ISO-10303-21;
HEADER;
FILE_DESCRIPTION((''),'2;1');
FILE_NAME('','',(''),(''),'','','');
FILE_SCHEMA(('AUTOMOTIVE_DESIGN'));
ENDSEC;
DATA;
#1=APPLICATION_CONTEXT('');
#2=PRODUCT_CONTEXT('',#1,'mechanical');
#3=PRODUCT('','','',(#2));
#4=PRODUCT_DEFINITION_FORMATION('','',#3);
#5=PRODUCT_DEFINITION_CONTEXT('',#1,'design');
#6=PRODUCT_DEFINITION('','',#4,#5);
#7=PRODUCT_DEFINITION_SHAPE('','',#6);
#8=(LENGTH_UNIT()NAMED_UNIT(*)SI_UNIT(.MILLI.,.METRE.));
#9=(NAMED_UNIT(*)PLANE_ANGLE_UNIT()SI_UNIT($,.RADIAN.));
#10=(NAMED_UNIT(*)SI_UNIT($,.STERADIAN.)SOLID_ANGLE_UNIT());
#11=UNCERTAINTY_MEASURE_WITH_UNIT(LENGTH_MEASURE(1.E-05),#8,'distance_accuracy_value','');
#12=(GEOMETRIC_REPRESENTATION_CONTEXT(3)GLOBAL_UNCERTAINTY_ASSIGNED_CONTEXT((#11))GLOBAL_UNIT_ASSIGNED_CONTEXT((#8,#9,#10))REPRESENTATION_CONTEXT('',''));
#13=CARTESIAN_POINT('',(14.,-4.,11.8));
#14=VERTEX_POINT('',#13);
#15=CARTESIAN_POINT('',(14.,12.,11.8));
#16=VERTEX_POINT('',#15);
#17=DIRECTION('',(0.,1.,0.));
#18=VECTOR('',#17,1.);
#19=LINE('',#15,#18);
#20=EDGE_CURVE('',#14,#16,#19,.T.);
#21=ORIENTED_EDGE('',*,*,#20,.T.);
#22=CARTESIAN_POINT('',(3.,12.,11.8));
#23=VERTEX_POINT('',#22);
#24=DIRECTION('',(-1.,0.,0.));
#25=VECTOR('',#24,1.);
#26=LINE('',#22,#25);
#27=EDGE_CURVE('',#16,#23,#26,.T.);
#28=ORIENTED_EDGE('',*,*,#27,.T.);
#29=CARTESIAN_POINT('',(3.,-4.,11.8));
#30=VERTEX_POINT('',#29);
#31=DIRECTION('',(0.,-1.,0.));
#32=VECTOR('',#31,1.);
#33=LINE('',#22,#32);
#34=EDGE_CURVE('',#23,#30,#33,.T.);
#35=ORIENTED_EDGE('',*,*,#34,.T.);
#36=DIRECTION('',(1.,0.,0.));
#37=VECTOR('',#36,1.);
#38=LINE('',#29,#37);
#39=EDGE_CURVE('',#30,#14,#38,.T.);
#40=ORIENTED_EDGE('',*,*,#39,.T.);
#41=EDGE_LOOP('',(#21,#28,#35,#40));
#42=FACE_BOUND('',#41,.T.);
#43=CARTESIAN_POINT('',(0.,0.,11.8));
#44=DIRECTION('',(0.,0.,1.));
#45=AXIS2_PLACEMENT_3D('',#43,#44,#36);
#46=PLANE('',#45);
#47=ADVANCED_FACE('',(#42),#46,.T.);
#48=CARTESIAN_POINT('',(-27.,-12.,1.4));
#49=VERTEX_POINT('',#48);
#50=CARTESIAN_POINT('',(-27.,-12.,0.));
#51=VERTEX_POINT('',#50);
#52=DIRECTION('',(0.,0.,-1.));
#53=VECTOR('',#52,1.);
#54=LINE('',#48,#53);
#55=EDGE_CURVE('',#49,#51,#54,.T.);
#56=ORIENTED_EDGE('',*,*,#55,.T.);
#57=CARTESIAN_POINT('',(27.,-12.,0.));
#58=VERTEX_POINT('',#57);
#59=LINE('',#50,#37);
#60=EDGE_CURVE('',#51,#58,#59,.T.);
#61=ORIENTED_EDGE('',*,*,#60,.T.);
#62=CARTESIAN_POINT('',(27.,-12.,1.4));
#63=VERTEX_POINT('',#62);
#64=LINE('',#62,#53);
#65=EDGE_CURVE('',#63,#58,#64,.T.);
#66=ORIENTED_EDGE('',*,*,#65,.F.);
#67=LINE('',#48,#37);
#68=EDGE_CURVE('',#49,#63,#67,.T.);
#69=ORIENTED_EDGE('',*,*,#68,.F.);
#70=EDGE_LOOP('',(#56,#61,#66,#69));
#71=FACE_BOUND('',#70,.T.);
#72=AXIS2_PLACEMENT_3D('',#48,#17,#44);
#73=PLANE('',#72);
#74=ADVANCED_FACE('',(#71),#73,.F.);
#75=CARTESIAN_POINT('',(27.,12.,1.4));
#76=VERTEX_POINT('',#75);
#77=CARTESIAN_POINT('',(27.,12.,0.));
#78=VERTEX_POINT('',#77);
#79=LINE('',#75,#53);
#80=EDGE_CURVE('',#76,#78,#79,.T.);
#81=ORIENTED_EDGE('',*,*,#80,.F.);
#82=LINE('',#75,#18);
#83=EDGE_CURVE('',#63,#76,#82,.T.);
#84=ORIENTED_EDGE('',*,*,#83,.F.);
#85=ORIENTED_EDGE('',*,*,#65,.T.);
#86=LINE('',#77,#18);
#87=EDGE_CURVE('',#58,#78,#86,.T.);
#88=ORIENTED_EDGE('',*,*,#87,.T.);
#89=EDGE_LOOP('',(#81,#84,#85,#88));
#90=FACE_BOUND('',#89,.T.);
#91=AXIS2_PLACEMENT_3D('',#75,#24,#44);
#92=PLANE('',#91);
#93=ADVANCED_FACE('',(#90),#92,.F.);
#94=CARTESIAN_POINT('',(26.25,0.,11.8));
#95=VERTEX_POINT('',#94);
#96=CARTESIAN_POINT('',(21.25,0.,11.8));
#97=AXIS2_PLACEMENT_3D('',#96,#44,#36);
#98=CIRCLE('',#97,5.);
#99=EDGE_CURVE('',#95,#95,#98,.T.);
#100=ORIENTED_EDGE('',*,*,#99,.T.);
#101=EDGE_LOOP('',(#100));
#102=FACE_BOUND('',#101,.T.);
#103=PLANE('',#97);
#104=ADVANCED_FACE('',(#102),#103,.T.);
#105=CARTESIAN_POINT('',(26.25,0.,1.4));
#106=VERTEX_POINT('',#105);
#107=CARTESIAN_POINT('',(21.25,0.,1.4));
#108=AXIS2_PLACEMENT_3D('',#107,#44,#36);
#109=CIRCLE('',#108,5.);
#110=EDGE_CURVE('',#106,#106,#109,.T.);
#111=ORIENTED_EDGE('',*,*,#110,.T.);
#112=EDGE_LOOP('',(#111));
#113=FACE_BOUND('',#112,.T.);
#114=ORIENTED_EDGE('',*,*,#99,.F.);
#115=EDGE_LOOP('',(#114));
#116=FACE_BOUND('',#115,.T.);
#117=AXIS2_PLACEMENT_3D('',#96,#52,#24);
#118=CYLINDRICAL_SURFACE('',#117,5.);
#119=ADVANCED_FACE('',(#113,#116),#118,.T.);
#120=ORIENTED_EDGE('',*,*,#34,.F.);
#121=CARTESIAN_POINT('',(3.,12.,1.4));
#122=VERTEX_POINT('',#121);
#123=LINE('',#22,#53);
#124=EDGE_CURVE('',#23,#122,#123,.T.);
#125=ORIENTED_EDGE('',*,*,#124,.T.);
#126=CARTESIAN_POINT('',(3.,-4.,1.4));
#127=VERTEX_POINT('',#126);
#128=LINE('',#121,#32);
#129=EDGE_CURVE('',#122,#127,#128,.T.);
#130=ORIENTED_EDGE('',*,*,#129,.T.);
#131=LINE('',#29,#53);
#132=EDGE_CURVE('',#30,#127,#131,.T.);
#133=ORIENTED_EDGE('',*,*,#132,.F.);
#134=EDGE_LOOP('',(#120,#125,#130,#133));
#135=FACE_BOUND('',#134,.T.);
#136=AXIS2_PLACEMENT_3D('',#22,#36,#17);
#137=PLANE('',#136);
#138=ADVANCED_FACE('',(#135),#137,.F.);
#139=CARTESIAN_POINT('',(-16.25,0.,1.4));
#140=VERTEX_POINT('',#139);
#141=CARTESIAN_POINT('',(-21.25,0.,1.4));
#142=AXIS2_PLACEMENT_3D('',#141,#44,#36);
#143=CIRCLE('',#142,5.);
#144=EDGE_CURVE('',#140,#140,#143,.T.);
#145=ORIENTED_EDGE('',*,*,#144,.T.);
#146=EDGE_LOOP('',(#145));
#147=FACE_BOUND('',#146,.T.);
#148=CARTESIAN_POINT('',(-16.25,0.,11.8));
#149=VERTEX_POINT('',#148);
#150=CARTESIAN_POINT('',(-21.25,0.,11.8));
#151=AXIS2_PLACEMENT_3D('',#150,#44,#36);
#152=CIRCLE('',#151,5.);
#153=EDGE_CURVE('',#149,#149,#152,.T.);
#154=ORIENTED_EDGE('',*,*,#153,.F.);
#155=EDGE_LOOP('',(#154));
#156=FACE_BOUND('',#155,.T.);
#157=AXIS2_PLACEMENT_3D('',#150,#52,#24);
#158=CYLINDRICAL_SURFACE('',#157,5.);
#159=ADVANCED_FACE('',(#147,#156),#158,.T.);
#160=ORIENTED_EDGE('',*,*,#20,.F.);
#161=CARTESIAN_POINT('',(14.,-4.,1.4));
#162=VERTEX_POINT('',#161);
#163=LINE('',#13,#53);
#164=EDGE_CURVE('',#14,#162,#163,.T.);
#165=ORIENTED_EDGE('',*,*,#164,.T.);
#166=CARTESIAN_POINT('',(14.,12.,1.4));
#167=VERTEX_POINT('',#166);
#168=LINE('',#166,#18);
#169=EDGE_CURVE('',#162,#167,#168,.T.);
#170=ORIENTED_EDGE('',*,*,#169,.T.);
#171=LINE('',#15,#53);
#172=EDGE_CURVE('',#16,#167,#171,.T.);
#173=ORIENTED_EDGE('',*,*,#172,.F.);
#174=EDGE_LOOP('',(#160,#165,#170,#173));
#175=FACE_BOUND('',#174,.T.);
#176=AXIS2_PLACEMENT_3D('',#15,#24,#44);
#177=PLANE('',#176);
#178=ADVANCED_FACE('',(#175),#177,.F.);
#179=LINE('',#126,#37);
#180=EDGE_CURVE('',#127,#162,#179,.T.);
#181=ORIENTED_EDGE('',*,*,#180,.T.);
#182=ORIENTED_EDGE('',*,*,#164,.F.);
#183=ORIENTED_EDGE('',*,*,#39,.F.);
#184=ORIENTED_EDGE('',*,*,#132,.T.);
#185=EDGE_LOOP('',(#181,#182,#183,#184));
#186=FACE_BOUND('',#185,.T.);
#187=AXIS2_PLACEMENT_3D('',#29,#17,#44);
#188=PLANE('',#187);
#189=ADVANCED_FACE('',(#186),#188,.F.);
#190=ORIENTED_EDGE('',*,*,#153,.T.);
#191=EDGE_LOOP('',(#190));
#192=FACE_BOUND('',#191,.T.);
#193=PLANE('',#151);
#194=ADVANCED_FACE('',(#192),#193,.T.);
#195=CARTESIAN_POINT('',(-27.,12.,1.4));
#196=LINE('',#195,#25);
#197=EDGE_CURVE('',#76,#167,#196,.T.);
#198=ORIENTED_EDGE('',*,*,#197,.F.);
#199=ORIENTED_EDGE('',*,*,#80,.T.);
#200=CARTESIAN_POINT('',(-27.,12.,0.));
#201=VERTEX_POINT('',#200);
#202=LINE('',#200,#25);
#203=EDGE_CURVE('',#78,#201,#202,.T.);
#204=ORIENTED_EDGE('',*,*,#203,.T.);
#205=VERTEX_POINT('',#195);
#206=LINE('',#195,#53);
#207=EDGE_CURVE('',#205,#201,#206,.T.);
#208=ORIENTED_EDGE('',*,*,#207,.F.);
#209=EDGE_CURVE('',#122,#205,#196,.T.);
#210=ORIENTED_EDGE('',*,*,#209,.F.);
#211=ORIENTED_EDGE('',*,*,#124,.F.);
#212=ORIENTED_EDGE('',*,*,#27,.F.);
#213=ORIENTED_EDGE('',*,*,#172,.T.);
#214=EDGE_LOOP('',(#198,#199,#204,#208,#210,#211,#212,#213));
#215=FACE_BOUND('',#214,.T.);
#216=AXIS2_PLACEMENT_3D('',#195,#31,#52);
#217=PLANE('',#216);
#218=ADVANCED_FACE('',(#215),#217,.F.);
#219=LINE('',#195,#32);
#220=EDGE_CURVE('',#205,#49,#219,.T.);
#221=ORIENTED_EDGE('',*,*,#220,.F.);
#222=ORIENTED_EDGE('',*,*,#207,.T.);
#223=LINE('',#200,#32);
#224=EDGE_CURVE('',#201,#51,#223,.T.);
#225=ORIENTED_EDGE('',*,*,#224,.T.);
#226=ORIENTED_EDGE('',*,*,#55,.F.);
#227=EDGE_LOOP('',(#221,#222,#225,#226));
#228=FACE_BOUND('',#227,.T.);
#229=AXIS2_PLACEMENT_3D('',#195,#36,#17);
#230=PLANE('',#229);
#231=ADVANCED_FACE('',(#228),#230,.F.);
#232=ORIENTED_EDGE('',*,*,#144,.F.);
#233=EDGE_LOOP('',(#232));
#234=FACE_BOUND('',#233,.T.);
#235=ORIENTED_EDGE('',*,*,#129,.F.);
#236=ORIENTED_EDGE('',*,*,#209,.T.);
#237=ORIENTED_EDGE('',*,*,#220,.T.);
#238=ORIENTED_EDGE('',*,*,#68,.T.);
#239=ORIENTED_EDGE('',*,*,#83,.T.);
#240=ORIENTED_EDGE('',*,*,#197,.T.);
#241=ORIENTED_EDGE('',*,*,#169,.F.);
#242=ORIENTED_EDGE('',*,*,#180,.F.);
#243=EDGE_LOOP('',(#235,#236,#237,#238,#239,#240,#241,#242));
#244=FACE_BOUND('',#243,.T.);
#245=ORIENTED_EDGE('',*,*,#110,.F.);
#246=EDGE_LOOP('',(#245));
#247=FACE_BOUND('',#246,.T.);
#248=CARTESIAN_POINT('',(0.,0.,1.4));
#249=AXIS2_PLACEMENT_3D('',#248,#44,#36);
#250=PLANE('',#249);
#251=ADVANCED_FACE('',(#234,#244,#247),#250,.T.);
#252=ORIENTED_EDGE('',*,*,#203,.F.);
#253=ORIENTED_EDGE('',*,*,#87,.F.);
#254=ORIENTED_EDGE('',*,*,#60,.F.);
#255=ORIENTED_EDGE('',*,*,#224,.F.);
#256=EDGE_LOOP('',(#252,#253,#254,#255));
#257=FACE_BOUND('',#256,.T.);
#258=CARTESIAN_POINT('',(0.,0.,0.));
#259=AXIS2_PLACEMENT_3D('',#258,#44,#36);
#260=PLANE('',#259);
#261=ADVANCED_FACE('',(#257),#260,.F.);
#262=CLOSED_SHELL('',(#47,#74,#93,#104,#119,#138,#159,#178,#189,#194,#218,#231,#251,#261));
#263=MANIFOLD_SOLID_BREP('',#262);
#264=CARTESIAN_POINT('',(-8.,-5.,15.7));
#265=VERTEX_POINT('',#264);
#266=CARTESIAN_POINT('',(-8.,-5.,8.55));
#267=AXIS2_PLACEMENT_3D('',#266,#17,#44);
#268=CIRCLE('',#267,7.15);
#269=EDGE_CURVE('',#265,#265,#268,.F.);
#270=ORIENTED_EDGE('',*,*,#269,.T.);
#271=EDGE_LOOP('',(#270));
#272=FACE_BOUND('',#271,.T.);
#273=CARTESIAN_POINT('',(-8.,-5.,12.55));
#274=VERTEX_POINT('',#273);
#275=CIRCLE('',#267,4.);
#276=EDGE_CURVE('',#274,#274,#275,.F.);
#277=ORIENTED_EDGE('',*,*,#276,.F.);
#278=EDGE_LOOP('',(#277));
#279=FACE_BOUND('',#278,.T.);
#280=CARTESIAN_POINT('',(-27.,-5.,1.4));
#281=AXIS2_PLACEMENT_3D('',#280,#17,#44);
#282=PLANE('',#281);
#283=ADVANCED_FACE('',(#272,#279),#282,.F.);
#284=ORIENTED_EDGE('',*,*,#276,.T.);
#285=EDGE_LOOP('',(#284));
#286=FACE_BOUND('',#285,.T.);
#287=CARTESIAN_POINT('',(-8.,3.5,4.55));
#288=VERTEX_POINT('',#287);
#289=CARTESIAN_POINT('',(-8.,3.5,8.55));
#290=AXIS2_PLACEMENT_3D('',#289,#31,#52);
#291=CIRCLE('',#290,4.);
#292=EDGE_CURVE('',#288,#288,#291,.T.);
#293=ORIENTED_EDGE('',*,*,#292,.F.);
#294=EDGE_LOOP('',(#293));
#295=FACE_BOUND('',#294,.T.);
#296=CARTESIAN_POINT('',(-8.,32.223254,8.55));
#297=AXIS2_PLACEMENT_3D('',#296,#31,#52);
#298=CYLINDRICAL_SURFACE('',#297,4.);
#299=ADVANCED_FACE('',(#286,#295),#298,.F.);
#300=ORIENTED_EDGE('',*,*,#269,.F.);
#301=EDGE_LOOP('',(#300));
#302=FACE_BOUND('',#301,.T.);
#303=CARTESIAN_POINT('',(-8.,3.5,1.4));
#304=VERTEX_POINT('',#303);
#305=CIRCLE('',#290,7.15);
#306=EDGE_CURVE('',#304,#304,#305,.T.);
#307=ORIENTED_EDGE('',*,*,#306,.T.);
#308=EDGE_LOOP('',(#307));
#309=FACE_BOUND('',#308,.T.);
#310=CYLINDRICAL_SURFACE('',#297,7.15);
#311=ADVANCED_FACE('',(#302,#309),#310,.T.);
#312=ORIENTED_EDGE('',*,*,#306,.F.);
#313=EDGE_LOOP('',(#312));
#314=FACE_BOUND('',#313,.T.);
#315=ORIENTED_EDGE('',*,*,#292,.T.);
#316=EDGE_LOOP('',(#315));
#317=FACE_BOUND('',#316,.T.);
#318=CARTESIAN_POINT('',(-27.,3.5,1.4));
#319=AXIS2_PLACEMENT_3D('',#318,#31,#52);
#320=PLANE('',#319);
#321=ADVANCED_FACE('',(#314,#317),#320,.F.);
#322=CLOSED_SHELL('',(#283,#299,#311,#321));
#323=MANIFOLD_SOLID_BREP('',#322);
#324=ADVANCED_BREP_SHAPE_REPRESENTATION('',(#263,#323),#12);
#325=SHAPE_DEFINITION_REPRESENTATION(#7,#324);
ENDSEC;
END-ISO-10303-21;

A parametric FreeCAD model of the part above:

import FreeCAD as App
import Part
import Sketcher


def add_polygon(sketch, points):
    """Adds a closed chain of lines whose ends are joined by coincident constraints."""
    first, n = sketch.GeometryCount, len(points)
    for a, b in zip(points, points[1:] + points[:1]):
        sketch.addGeometry(Part.LineSegment(App.Vector(*a, 0), App.Vector(*b, 0)), False)
    for i in range(n):
        sketch.addConstraint(Sketcher.Constraint("Coincident", first + i, 2, first + (i + 1) % n, 1))

doc = App.newDocument("Part")
body = doc.addObject("PartDesign::Body", "Body")

# Sketch on XY plane
sketch1 = doc.addObject("Sketcher::SketchObject", "Sketch")
body.addObject(sketch1)
sketch1.AttachmentSupport = (doc.XY_Plane, [""])
sketch1.MapMode = "FlatFace"
add_polygon(sketch1, [(-27, 12), (-27, -12), (27, -12), (27, 12)])  # lines 0-3
sketch1.addConstraint([
    Sketcher.Constraint("Vertical", 0),
    Sketcher.Constraint("Horizontal", 1),
    Sketcher.Constraint("Vertical", 2),
    Sketcher.Constraint("Horizontal", 3),
    Sketcher.Constraint("Symmetric", 0, 2, 2, 2, -1, 1),
    Sketcher.Constraint("DistanceX", 1, 1, 1, 2, 54.0),
    Sketcher.Constraint("DistanceY", 0, 2, 0, 1, 24.0),
])
pad1 = doc.addObject("PartDesign::Pad", "Pad")
body.addObject(pad1)
pad1.Profile = sketch1
pad1.Length = 1.4

# Sketch on XY plane
sketch2 = doc.addObject("Sketcher::SketchObject", "Sketch001")
body.addObject(sketch2)
sketch2.AttachmentSupport = (doc.XY_Plane, [""])
sketch2.MapMode = "FlatFace"
sketch2.AttachmentOffset = App.Placement(App.Vector(0, 0, 1.4), App.Rotation())
sketch2.addGeometry(Part.Circle(App.Vector(21, 0, 0), App.Vector(0, 0, 1), 5), False)  # 0
sketch2.addGeometry(Part.Circle(App.Vector(-21, 0, 0), App.Vector(0, 0, 1), 5), False)  # 1
add_polygon(sketch2, [(3, 12), (3, -4), (14, -4), (14, 12)])  # lines 2-5
sketch2.addConstraint([
    Sketcher.Constraint("Vertical", 2),
    Sketcher.Constraint("Horizontal", 3),
    Sketcher.Constraint("Vertical", 4),
    Sketcher.Constraint("Horizontal", 5),
    Sketcher.Constraint("Equal", 0, 1),
    Sketcher.Constraint("Symmetric", 0, 3, 1, 3, -1, 1),
    Sketcher.Constraint("PointOnObject", 0, 3, -1),
    Sketcher.Constraint("Diameter", 0, 10.0),
    Sketcher.Constraint("DistanceX", 3, 1, 3, 2, 11.0),
    Sketcher.Constraint("DistanceY", 2, 2, 2, 1, 16.0),
    Sketcher.Constraint("DistanceX", -1, 1, 2, 2, 3.0),
    Sketcher.Constraint("DistanceY", 2, 2, -1, 1, 4.0),
    Sketcher.Constraint("DistanceX", 1, 3, 0, 3, 42.5),
])
pad2 = doc.addObject("PartDesign::Pad", "Pad001")
body.addObject(pad2)
pad2.Profile = sketch2
pad2.Length = 10.4
body2 = doc.addObject("PartDesign::Body", "Body001")

# Sketch on XZ plane
sketch3 = doc.addObject("Sketcher::SketchObject", "Sketch002")
body2.addObject(sketch3)
sketch3.AttachmentSupport = (doc.getObject("XZ_Plane001"), [""])
sketch3.MapMode = "FlatFace"
sketch3.addGeometry([
    Part.Circle(App.Vector(-8, 8.6, 0), App.Vector(0, 0, 1), 7.2),
    Part.Circle(App.Vector(-8, 8.6, 0), App.Vector(0, 0, 1), 4),
], False)
sketch3.addConstraint([
    Sketcher.Constraint("Coincident", 1, 3, 0, 3),
    Sketcher.Constraint("Diameter", 1, 8.0),
    Sketcher.Constraint("Diameter", 0, 14.3),
    Sketcher.Constraint("DistanceX", 0, 3, -1, 1, 8.0),
    Sketcher.Constraint("DistanceY", -1, 1, 0, 3, 8.55),
])
pad3 = doc.addObject("PartDesign::Pad", "Pad002")
body2.addObject(pad3)
pad3.Profile = sketch3
pad3.Type = "TwoLengths"
pad3.Length = 3.5
pad3.Length2 = 5
pad3.Reversed = True

doc.recompute()
